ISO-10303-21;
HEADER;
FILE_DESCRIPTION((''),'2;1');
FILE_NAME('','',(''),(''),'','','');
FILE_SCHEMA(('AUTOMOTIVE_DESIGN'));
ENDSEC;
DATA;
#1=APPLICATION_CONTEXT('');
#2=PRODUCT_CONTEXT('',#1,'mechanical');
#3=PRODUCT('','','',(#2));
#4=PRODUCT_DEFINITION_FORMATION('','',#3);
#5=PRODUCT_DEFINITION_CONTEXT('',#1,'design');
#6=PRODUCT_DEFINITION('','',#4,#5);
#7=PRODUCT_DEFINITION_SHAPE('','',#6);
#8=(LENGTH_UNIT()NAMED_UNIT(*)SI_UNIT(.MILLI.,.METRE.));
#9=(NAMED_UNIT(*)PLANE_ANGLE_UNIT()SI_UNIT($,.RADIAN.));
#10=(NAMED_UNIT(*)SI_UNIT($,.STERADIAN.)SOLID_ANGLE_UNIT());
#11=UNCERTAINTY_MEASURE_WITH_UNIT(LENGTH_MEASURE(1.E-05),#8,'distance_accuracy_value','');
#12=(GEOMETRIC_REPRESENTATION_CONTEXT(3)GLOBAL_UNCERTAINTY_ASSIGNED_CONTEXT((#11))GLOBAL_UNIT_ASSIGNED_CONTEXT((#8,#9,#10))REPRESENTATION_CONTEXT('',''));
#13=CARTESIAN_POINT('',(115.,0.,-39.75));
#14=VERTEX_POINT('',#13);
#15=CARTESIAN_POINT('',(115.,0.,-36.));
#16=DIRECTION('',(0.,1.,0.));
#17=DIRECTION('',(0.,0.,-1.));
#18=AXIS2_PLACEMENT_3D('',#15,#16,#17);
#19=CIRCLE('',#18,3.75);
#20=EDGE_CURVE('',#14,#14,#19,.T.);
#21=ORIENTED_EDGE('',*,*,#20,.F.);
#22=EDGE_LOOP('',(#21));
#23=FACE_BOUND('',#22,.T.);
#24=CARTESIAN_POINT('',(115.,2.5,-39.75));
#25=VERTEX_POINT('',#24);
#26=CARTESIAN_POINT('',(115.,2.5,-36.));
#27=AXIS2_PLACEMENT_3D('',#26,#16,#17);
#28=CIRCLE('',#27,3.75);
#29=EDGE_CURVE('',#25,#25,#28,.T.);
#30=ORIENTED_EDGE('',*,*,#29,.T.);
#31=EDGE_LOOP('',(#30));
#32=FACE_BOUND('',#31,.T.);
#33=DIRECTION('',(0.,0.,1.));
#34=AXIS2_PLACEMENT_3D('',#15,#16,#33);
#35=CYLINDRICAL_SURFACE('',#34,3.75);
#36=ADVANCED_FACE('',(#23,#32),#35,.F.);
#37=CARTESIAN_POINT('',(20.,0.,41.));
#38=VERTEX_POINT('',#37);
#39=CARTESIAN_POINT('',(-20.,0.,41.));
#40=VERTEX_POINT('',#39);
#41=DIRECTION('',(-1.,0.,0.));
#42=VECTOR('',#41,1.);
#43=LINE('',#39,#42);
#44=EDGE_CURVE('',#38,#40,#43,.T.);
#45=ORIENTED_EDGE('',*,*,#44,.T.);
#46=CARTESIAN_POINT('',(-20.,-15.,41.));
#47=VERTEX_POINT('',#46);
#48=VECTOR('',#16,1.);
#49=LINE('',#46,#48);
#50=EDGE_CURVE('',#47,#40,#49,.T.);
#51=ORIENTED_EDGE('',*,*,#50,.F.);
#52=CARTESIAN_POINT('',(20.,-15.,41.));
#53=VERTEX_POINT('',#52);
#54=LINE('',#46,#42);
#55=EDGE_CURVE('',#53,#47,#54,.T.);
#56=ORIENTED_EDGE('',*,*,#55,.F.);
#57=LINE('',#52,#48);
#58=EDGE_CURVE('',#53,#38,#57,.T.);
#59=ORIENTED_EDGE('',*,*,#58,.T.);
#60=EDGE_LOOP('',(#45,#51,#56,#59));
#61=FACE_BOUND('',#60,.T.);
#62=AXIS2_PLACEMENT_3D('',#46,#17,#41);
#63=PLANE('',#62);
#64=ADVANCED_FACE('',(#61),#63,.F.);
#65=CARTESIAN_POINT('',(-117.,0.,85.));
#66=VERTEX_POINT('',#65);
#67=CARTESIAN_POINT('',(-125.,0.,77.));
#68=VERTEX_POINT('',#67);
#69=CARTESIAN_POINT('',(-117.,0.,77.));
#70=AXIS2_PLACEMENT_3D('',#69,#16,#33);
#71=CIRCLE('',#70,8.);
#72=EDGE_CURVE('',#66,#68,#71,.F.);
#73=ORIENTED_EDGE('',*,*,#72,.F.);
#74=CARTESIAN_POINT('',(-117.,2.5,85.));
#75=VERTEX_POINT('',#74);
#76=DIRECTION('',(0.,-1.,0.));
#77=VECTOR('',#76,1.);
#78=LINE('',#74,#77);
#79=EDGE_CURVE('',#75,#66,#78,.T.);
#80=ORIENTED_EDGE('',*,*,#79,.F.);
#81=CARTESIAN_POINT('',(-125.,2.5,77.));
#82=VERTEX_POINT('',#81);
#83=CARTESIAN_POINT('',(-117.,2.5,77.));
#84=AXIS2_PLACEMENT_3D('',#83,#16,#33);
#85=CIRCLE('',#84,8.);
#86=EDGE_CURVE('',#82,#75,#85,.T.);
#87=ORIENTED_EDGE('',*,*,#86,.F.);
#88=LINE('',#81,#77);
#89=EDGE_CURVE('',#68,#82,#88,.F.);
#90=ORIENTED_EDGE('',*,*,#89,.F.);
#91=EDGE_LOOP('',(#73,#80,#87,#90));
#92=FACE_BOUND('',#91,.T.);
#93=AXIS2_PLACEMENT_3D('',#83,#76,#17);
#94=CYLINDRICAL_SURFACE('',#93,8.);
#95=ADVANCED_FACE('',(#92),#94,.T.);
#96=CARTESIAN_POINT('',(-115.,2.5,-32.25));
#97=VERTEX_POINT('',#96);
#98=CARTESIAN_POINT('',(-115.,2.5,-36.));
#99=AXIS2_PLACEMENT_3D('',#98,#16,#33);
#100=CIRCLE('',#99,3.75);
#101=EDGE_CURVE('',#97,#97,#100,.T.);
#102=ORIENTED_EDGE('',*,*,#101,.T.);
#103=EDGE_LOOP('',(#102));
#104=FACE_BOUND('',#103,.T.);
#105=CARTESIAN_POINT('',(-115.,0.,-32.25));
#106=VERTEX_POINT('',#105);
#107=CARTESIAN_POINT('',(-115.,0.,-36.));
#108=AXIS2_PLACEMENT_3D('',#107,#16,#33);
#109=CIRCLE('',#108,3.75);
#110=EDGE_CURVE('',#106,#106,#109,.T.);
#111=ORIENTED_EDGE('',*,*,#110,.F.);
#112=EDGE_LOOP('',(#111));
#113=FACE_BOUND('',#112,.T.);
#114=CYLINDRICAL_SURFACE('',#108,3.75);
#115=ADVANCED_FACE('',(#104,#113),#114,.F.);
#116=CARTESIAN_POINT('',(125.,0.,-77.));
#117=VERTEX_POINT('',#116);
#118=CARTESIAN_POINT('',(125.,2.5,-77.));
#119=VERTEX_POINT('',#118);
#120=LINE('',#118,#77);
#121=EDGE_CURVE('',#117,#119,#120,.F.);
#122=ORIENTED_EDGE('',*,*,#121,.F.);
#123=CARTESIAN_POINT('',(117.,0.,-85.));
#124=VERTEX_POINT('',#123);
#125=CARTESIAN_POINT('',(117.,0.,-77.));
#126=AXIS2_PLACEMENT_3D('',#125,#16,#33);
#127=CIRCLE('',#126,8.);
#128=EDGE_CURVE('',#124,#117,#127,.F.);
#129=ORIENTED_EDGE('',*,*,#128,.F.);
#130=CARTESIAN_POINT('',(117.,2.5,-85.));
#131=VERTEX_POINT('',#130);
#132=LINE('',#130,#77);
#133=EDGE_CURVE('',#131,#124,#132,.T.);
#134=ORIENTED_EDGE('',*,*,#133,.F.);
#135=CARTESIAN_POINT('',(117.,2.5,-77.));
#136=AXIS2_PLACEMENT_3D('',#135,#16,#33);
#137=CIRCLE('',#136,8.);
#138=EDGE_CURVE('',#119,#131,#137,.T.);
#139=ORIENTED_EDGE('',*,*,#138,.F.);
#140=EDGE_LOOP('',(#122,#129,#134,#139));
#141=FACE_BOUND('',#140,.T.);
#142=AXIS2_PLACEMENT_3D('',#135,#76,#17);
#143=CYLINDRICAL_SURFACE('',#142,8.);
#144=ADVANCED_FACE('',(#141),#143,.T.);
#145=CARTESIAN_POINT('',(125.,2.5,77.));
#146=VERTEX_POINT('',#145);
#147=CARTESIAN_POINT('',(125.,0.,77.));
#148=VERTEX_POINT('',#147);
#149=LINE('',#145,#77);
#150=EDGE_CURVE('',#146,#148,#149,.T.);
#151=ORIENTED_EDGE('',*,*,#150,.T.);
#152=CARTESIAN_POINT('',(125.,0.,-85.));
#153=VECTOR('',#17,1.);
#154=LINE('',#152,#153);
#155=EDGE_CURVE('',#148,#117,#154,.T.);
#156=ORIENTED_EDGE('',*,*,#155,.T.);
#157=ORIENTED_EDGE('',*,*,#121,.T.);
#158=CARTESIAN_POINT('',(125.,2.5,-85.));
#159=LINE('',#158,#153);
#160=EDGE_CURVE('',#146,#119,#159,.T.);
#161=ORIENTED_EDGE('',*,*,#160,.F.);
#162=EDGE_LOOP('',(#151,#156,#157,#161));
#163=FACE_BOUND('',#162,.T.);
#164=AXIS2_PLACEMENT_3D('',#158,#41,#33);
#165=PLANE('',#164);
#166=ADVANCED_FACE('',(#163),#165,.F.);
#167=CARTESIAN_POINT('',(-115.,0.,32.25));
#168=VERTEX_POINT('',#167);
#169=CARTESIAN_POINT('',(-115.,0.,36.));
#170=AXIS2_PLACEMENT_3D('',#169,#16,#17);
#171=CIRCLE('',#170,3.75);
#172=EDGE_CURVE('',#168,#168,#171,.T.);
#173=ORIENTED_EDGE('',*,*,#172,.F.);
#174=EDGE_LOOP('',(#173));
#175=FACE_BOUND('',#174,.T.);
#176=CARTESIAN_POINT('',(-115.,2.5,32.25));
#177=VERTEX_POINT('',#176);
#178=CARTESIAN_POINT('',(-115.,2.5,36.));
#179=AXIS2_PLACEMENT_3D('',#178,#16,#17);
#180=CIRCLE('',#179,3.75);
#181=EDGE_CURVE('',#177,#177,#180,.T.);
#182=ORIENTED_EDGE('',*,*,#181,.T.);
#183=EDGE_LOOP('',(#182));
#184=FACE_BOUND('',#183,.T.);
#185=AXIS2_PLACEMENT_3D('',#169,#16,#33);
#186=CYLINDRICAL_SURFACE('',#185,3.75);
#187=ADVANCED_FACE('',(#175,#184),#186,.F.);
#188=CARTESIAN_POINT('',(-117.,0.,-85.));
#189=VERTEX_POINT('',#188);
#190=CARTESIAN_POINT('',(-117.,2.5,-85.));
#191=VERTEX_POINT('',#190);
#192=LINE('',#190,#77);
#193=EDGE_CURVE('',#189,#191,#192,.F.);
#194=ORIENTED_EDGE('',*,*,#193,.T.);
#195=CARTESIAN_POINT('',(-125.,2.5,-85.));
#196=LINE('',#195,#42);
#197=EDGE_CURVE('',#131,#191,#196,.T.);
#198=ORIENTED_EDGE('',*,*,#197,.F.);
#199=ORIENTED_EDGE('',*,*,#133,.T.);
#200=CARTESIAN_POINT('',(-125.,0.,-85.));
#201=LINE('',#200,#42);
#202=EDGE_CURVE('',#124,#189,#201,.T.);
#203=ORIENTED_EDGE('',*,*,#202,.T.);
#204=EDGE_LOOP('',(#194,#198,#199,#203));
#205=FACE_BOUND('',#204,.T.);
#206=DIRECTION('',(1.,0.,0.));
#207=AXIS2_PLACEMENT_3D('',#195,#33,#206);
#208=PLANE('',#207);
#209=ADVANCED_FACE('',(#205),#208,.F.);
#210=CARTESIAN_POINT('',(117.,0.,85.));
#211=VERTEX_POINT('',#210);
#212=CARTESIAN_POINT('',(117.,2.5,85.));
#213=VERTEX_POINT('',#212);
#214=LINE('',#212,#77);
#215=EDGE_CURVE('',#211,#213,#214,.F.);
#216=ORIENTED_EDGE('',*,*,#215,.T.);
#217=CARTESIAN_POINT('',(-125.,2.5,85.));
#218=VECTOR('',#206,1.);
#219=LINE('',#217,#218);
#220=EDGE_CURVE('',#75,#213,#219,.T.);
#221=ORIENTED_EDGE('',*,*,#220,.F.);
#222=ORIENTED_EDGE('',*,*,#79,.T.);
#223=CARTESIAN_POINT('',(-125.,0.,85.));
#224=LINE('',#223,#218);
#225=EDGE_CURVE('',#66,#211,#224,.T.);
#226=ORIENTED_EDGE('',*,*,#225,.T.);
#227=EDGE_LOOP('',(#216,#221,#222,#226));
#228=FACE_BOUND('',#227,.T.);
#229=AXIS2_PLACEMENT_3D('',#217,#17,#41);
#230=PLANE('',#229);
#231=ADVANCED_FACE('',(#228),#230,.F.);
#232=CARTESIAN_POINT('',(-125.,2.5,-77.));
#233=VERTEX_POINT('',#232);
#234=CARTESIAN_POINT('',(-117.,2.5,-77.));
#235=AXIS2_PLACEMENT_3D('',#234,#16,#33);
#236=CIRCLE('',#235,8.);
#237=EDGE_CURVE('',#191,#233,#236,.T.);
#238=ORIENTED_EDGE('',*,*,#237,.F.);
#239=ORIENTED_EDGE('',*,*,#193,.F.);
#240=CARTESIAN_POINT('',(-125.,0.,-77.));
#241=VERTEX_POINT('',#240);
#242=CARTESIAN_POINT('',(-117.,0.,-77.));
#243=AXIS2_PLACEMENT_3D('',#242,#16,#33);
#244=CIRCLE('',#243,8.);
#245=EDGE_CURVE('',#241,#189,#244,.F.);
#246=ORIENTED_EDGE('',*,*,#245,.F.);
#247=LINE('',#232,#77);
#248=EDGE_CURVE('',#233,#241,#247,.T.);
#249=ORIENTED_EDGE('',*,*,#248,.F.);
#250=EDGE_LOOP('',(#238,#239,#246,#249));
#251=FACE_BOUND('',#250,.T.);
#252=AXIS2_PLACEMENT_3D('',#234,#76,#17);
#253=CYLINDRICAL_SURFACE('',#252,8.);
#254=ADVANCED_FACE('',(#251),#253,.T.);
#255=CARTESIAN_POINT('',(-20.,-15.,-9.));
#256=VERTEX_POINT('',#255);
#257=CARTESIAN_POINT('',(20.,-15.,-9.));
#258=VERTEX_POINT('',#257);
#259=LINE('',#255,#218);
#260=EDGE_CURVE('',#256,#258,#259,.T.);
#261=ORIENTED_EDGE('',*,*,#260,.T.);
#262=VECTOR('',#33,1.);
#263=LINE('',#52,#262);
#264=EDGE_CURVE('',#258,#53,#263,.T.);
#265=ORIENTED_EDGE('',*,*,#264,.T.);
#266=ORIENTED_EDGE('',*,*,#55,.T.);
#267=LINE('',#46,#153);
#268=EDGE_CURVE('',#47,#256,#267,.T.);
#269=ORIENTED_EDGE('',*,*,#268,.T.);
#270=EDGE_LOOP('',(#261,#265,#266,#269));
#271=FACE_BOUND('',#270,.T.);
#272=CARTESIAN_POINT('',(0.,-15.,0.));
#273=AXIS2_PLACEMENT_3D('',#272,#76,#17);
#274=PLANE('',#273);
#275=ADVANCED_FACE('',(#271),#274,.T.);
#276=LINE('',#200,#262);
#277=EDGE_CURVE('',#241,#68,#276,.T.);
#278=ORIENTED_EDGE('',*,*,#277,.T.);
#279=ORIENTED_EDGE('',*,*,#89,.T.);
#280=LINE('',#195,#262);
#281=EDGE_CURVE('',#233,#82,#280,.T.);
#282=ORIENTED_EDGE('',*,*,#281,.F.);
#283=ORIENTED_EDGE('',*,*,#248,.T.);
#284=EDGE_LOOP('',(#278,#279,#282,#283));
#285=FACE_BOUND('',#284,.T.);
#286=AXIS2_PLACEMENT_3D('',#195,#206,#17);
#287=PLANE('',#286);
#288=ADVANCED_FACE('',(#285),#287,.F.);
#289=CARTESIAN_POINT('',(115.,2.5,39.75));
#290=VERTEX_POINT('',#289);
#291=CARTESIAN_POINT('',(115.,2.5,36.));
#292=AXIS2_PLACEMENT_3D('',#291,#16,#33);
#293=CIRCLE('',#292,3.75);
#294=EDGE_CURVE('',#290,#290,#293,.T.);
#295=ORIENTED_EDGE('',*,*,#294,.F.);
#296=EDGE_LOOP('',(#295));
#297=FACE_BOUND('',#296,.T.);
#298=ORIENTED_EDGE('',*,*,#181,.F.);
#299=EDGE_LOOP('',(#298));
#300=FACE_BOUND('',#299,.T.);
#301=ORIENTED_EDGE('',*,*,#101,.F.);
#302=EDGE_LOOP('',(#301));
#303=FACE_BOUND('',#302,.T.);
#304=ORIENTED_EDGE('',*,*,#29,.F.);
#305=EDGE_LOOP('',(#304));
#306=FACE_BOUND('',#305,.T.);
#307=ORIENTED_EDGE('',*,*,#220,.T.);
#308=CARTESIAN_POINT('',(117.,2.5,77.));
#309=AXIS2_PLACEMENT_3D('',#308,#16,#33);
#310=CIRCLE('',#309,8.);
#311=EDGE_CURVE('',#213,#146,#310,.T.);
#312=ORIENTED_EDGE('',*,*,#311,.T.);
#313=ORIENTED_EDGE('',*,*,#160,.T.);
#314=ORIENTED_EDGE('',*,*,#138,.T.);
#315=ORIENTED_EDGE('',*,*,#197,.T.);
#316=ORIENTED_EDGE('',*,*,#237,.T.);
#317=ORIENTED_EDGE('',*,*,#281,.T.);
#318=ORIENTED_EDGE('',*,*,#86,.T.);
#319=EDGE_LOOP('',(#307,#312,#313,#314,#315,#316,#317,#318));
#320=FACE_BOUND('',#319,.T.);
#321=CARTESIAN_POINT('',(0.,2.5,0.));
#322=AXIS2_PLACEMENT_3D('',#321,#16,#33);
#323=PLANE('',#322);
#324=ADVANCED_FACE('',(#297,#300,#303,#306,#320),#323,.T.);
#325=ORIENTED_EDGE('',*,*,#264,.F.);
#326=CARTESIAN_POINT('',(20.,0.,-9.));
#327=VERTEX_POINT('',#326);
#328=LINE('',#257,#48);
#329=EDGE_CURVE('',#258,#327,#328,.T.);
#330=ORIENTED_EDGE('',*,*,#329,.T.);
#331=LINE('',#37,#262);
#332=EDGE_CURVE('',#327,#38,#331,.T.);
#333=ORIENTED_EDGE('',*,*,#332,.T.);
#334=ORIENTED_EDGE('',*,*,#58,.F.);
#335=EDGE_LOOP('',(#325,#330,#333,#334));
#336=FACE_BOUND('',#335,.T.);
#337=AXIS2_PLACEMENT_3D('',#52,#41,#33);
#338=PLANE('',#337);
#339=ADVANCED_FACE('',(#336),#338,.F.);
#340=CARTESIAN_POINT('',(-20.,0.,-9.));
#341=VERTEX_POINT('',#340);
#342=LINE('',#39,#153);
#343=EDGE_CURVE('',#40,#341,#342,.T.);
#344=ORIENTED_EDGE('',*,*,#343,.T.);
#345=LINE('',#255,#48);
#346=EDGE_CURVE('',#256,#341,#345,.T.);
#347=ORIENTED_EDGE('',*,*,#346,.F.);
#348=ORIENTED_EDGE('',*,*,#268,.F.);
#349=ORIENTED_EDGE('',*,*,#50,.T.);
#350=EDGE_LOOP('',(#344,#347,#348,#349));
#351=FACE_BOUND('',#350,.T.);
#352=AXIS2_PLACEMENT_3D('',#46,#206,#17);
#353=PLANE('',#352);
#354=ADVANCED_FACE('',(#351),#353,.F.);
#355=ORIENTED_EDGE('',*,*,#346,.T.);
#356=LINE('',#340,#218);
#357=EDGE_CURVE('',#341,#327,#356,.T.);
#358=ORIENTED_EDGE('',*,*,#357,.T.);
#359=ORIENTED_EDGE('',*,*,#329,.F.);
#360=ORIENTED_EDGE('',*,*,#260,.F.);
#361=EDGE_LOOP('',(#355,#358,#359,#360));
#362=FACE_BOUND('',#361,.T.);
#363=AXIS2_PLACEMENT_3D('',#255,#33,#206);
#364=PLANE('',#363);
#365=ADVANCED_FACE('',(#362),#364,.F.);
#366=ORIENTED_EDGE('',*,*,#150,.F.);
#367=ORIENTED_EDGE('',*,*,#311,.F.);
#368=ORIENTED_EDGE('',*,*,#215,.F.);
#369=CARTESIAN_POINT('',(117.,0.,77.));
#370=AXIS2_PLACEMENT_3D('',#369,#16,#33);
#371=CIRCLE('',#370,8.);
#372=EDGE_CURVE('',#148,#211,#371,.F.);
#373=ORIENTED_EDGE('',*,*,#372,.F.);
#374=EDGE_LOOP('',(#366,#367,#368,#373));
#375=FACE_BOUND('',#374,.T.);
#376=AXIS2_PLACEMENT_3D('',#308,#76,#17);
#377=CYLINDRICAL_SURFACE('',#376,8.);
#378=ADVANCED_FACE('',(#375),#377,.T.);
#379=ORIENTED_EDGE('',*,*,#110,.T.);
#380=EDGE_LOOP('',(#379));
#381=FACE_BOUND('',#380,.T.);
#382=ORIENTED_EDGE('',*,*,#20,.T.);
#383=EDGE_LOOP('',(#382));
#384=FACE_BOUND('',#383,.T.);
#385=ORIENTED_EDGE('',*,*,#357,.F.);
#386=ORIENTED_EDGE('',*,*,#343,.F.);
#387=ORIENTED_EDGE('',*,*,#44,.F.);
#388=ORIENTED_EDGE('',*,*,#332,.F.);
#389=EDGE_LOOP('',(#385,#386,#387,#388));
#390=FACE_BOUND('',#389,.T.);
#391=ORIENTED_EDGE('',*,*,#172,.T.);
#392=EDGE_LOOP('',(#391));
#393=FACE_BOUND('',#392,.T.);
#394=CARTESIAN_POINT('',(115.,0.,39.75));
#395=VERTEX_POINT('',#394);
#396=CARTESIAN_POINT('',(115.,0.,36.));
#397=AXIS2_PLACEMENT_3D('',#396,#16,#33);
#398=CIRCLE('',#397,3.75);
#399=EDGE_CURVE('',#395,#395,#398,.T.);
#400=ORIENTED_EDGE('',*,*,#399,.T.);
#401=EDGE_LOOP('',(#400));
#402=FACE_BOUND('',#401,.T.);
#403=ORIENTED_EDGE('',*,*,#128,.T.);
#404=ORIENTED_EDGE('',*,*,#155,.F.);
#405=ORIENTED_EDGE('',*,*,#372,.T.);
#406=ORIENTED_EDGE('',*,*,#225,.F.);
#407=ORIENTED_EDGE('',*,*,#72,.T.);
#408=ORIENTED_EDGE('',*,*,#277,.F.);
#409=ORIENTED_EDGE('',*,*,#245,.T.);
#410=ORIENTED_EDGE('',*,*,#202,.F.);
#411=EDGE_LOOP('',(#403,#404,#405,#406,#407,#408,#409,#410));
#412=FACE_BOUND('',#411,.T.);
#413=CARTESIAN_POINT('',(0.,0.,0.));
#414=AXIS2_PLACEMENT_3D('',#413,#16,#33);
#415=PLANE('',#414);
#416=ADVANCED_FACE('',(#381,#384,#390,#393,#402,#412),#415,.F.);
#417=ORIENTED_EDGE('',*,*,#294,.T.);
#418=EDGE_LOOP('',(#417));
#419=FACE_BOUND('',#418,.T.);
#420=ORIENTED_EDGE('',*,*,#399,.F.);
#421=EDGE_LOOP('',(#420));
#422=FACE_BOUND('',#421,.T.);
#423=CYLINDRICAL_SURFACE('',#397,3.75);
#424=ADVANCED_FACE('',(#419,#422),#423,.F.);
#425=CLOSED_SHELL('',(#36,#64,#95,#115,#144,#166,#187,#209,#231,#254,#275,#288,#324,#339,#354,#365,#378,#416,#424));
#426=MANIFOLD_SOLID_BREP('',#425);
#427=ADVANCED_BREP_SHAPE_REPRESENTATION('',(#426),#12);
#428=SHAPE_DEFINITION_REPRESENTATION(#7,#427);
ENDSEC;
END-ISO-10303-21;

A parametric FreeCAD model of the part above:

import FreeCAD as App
import Part
import Sketcher


def edges_at(feature, points):
    """Names of the edges that pass closest to the given points."""
    edges = feature.Shape.Edges
    near = lambda p: min(range(len(edges)), key=lambda i: edges[i].distToShape(Part.Vertex(*p))[0])
    return sorted({f"Edge{near(p) + 1}" for p in points})

doc = App.newDocument("Part")
body = doc.addObject("PartDesign::Body", "Body")

# Sketch on XZ plane
sketch1 = body.newObject("Sketcher::SketchObject", "Sketch")
sketch1.AttachmentSupport = (doc.getObject("XZ_Plane"), [""])
sketch1.MapMode = "FlatFace"
sketch1.addGeometry([
    Part.LineSegment(App.Vector(-125, -85, 0), App.Vector(-125, 85, 0)),
    Part.LineSegment(App.Vector(-125, 85, 0), App.Vector(125, 85, 0)),
    Part.LineSegment(App.Vector(125, 85, 0), App.Vector(125, -85, 0)),
    Part.LineSegment(App.Vector(125, -85, 0), App.Vector(-125, -85, 0)),
], False)
sketch1.addConstraint([
    Sketcher.Constraint("Coincident", 0, 2, 1, 1),
    Sketcher.Constraint("Coincident", 1, 2, 2, 1),
    Sketcher.Constraint("Coincident", 2, 2, 3, 1),
    Sketcher.Constraint("Coincident", 3, 2, 0, 1),
    Sketcher.Constraint("Vertical", 0),
    Sketcher.Constraint("Horizontal", 1),
    Sketcher.Constraint("Vertical", 2),
    Sketcher.Constraint("Horizontal", 3),
    Sketcher.Constraint("Symmetric", 0, 2, 2, 2, -1, 1),
    Sketcher.Constraint("DistanceX", 1, 1, 1, 2, 250.0),
    Sketcher.Constraint("DistanceY", 0, 1, 0, 2, 170.0),
])
pad1 = body.newObject("PartDesign::Pad", "Pad")
pad1.Profile = sketch1
pad1.Length = 2.5
pad1.Reversed = True

# Sketch on XZ plane
sketch2 = body.newObject("Sketcher::SketchObject", "Sketch001")
sketch2.AttachmentSupport = (doc.getObject("XZ_Plane"), [""])
sketch2.MapMode = "FlatFace"
sketch2.AttachmentOffset = App.Placement(App.Vector(0, 0, -2.5), App.Rotation())
sketch2.addGeometry([
    Part.Circle(App.Vector(-115, -36, 0), App.Vector(0, 0, 1), 3.8),
    Part.Circle(App.Vector(-115, 36, 0), App.Vector(0, 0, 1), 3.8),
    Part.Circle(App.Vector(115, 36, 0), App.Vector(0, 0, 1), 3.8),
    Part.Circle(App.Vector(115, -36, 0), App.Vector(0, 0, 1), 3.8),
], False)
sketch2.addConstraint([
    Sketcher.Constraint("Equal", 0, 1),
    Sketcher.Constraint("Equal", 1, 2),
    Sketcher.Constraint("Equal", 2, 3),
    Sketcher.Constraint("Symmetric", 0, 3, 2, 3, -1, 1),
    Sketcher.Constraint("Symmetric", 1, 3, 3, 3, -1, 1),
    Sketcher.Constraint("Symmetric", 1, 3, 2, 3, -2),
    Sketcher.Constraint("Diameter", 0, 7.5),
    Sketcher.Constraint("DistanceX", 0, 3, -1, 1, 115.0),
    Sketcher.Constraint("DistanceY", 0, 3, -1, 1, 36.0),
])
pocket1 = body.newObject("PartDesign::Pocket", "Pocket")
pocket1.Profile = sketch2
pocket1.Type = "ThroughAll"
pocket1.Reversed = True
doc.recompute()

fillet = body.newObject("PartDesign::Fillet", "Fillet")
fillet.Base = (pocket1, edges_at(pocket1, [
    (-125, 1.25, -85),
    (125, 1.25, -85),
    (125, 1.25, 85),
    (-125, 1.25, 85),
]))
fillet.Radius = 8

# Sketch on XZ plane
sketch3 = body.newObject("Sketcher::SketchObject", "Sketch002")
sketch3.AttachmentSupport = (doc.getObject("XZ_Plane"), [""])
sketch3.MapMode = "FlatFace"
sketch3.addGeometry([
    Part.LineSegment(App.Vector(-20, 41, 0), App.Vector(-20, -9, 0)),
    Part.LineSegment(App.Vector(-20, -9, 0), App.Vector(20, -9, 0)),
    Part.LineSegment(App.Vector(20, -9, 0), App.Vector(20, 41, 0)),
    Part.LineSegment(App.Vector(20, 41, 0), App.Vector(-20, 41, 0)),
], False)
sketch3.addConstraint([
    Sketcher.Constraint("Coincident", 0, 2, 1, 1),
    Sketcher.Constraint("Coincident", 1, 2, 2, 1),
    Sketcher.Constraint("Coincident", 2, 2, 3, 1),
    Sketcher.Constraint("Coincident", 3, 2, 0, 1),
    Sketcher.Constraint("Vertical", 0),
    Sketcher.Constraint("Horizontal", 1),
    Sketcher.Constraint("Vertical", 2),
    Sketcher.Constraint("Horizontal", 3),
    Sketcher.Constraint("DistanceX", 1, 1, 1, 2, 40.0),
    Sketcher.Constraint("DistanceY", 0, 2, 0, 1, 50.0),
    Sketcher.Constraint("DistanceX", 0, 2, -1, 1, 20.0),
    Sketcher.Constraint("DistanceY", 0, 2, -1, 1, 9.0),
])
pad2 = body.newObject("PartDesign::Pad", "Pad001")
pad2.Profile = sketch3
pad2.Length = 15

doc.recompute()
